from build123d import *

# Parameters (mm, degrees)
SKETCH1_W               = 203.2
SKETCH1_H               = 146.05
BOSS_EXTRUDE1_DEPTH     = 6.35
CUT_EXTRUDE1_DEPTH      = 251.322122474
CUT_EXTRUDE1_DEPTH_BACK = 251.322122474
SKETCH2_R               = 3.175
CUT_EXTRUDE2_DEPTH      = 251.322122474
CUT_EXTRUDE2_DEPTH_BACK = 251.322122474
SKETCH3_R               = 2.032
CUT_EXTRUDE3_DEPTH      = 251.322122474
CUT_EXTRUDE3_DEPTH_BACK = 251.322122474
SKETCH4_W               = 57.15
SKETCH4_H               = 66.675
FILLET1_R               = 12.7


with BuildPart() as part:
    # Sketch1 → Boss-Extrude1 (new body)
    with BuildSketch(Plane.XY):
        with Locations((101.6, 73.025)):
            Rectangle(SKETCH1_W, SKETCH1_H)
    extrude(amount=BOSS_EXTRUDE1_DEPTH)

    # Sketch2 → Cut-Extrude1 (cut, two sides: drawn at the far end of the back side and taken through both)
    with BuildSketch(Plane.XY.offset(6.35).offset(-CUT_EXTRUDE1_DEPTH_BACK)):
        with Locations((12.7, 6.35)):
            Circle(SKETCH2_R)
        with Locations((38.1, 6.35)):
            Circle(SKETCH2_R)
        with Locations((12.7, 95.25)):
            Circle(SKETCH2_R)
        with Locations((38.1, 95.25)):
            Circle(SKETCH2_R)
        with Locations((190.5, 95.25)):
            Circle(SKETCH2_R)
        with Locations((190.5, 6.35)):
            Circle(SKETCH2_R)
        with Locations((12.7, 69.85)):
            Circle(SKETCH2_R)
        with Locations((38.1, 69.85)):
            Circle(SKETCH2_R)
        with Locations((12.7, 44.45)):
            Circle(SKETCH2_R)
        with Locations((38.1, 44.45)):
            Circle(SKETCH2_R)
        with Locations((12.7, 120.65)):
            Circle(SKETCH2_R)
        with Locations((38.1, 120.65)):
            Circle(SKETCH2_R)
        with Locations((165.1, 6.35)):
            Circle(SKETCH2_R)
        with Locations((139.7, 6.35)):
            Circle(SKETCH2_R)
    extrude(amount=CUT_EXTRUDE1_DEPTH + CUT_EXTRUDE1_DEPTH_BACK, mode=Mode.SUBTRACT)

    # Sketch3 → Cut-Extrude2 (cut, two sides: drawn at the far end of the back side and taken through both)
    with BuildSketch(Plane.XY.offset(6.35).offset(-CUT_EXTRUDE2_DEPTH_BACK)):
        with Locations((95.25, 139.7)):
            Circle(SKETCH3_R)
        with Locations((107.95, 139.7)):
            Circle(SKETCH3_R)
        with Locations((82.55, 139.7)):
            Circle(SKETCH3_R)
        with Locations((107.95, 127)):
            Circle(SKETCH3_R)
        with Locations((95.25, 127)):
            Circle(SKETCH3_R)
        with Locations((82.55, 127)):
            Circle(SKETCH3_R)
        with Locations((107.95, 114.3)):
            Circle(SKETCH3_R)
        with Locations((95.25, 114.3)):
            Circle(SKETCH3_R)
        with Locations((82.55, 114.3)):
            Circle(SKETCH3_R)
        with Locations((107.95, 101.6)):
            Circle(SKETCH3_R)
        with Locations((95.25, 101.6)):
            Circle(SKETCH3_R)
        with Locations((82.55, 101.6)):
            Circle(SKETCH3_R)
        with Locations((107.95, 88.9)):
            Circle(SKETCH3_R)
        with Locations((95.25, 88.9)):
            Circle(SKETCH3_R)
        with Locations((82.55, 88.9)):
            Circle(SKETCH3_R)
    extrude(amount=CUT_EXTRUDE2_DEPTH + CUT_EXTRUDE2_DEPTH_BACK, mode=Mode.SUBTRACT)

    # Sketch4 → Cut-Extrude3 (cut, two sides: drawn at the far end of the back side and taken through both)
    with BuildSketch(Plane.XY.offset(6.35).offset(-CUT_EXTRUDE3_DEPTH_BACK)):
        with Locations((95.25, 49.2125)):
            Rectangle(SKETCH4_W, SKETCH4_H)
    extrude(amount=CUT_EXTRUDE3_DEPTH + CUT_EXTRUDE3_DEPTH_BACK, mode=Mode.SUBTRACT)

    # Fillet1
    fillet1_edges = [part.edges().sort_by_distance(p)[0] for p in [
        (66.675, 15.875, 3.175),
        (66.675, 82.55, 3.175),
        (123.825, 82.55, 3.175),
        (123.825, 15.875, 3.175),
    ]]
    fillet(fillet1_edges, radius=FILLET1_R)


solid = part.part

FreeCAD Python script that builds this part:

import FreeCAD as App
import Part
import Sketcher
Q = App.Units.Quantity


def edges_at(feature, points):
    """Names of the edges that pass closest to the given points."""
    edges = feature.Shape.Edges
    near = lambda p: min(range(len(edges)), key=lambda i: edges[i].distToShape(Part.Vertex(*p))[0])
    return sorted({f"Edge{near(p) + 1}" for p in points})


def add_polygon(sketch, points):
    """Adds a closed chain of lines whose ends are joined by coincident constraints."""
    first, n = sketch.GeometryCount, len(points)
    for a, b in zip(points, points[1:] + points[:1]):
        sketch.addGeometry(Part.LineSegment(App.Vector(*a, 0), App.Vector(*b, 0)), False)
    for i in range(n):
        sketch.addConstraint(Sketcher.Constraint("Coincident", first + i, 2, first + (i + 1) % n, 1))

doc = App.newDocument("Part")
params = doc.addObject("Spreadsheet::Sheet", "Params")
for row, (alias, value) in enumerate([
    ("sketch1_width", "8 in"),
    ("sketch1_height", "5.75 in"),
    ("pad1_length", "0.25 in"),
    ("sketch2_diameter", "0.25 in"),
    ("sketch3_diameter", "0.16 in"),
    ("sketch4_width", "2.25 in"),
    ("sketch4_height", "2.625 in"),
    ("fillet_radius", "0.5 in"),
], start=1):
    params.set(f"A{row}", alias)
    params.set(f"B{row}", "=" + value)
    params.setAlias(f"B{row}", alias)

body = doc.addObject("PartDesign::Body", "Body")

sketch1 = body.newObject("Sketcher::SketchObject", "Sketch")
sketch1.AttachmentSupport = (doc.getObject("XY_Plane"), [""])
sketch1.MapMode = "FlatFace"
add_polygon(sketch1, [(0, 146.05), (0, 0), (203.2, 0), (203.2, 146.05)])
sketch1.addConstraint(Sketcher.Constraint("Vertical", 0))
sketch1.addConstraint(Sketcher.Constraint("Horizontal", 1))
sketch1.addConstraint(Sketcher.Constraint("Vertical", 2))
sketch1.addConstraint(Sketcher.Constraint("Horizontal", 3))
sketch1.addConstraint(Sketcher.Constraint("Coincident", 0, 2, -1, 1))
sketch1.addConstraint(Sketcher.Constraint("DistanceX", 1, 1, 1, 2, Q("8 in")))
sketch1.addConstraint(Sketcher.Constraint("DistanceY", 0, 2, 0, 1, Q("5.75 in")))
sketch1.setExpression("Constraints[9]", "Params.sketch1_width")
sketch1.setExpression("Constraints[10]", "Params.sketch1_height")
pad1 = body.newObject("PartDesign::Pad", "Pad")
pad1.Profile = sketch1
pad1.setExpression("Length", "Params.pad1_length")

sketch2 = body.newObject("Sketcher::SketchObject", "Sketch001")
sketch2.AttachmentSupport = (doc.getObject("XY_Plane"), [""])
sketch2.MapMode = "FlatFace"
sketch2.AttachmentOffset = App.Placement(App.Vector(0, 0, 0.25 * 25.4), App.Rotation())
sketch2.addGeometry(Part.Circle(App.Vector(12.7, 6.35, 0), App.Vector(0, 0, 1), 3.175), False)
sketch2.addGeometry(Part.Circle(App.Vector(38.1, 6.35, 0), App.Vector(0, 0, 1), 3.175), False)
sketch2.addGeometry(Part.Circle(App.Vector(12.7, 95.25, 0), App.Vector(0, 0, 1), 3.175), False)
sketch2.addGeometry(Part.Circle(App.Vector(38.1, 95.25, 0), App.Vector(0, 0, 1), 3.175), False)
sketch2.addGeometry(Part.Circle(App.Vector(190.5, 95.25, 0), App.Vector(0, 0, 1), 3.175), False)
sketch2.addGeometry(Part.Circle(App.Vector(190.5, 6.35, 0), App.Vector(0, 0, 1), 3.175), False)
sketch2.addGeometry(Part.Circle(App.Vector(12.7, 69.85, 0), App.Vector(0, 0, 1), 3.175), False)
sketch2.addGeometry(Part.Circle(App.Vector(38.1, 69.85, 0), App.Vector(0, 0, 1), 3.175), False)
sketch2.addGeometry(Part.Circle(App.Vector(12.7, 44.45, 0), App.Vector(0, 0, 1), 3.175), False)
sketch2.addGeometry(Part.Circle(App.Vector(38.1, 44.45, 0), App.Vector(0, 0, 1), 3.175), False)
sketch2.addGeometry(Part.Circle(App.Vector(12.7, 120.65, 0), App.Vector(0, 0, 1), 3.175), False)
sketch2.addGeometry(Part.Circle(App.Vector(38.1, 120.65, 0), App.Vector(0, 0, 1), 3.175), False)
sketch2.addGeometry(Part.Circle(App.Vector(165.1, 6.35, 0), App.Vector(0, 0, 1), 3.175), False)
sketch2.addGeometry(Part.Circle(App.Vector(139.7, 6.35, 0), App.Vector(0, 0, 1), 3.175), False)
sketch2.addConstraint(Sketcher.Constraint("Equal", 0, 1))
sketch2.addConstraint(Sketcher.Constraint("Equal", 1, 2))
sketch2.addConstraint(Sketcher.Constraint("Equal", 2, 3))
sketch2.addConstraint(Sketcher.Constraint("Equal", 3, 4))
sketch2.addConstraint(Sketcher.Constraint("Equal", 4, 5))
sketch2.addConstraint(Sketcher.Constraint("Equal", 5, 6))
sketch2.addConstraint(Sketcher.Constraint("Equal", 6, 7))
sketch2.addConstraint(Sketcher.Constraint("Equal", 7, 8))
sketch2.addConstraint(Sketcher.Constraint("Equal", 8, 9))
sketch2.addConstraint(Sketcher.Constraint("Equal", 9, 10))
sketch2.addConstraint(Sketcher.Constraint("Equal", 10, 11))
sketch2.addConstraint(Sketcher.Constraint("Equal", 11, 12))
sketch2.addConstraint(Sketcher.Constraint("Equal", 12, 13))
sketch2.addConstraint(Sketcher.Constraint("Horizontal", 0, 3, 1, 3))
sketch2.addConstraint(Sketcher.Constraint("Horizontal", 2, 3, 3, 3))
sketch2.addConstraint(Sketcher.Constraint("Horizontal", 3, 3, 4, 3))
sketch2.addConstraint(Sketcher.Constraint("Horizontal", 1, 3, 5, 3))
sketch2.addConstraint(Sketcher.Constraint("Horizontal", 6, 3, 7, 3))
sketch2.addConstraint(Sketcher.Constraint("Horizontal", 8, 3, 9, 3))
sketch2.addConstraint(Sketcher.Constraint("Horizontal", 10, 3, 11, 3))
sketch2.addConstraint(Sketcher.Constraint("Horizontal", 5, 3, 12, 3))
sketch2.addConstraint(Sketcher.Constraint("Horizontal", 12, 3, 13, 3))
sketch2.addConstraint(Sketcher.Constraint("Vertical", 0, 3, 2, 3))
sketch2.addConstraint(Sketcher.Constraint("Vertical", 1, 3, 3, 3))
sketch2.addConstraint(Sketcher.Constraint("Vertical", 4, 3, 5, 3))
sketch2.addConstraint(Sketcher.Constraint("Vertical", 2, 3, 6, 3))
sketch2.addConstraint(Sketcher.Constraint("Vertical", 3, 3, 7, 3))
sketch2.addConstraint(Sketcher.Constraint("Vertical", 6, 3, 8, 3))
sketch2.addConstraint(Sketcher.Constraint("Vertical", 7, 3, 9, 3))
sketch2.addConstraint(Sketcher.Constraint("Vertical", 8, 3, 10, 3))
sketch2.addConstraint(Sketcher.Constraint("Vertical", 9, 3, 11, 3))
sketch2.addConstraint(Sketcher.Constraint("Diameter", 0, Q("0.25 in")))
sketch2.addConstraint(Sketcher.Constraint("DistanceX", 0, 3, 1, 3, Q("1 in")))
sketch2.addConstraint(Sketcher.Constraint("DistanceX", 3, 3, 4, 3, Q("6 in")))
sketch2.addConstraint(Sketcher.Constraint("DistanceY", 6, 3, 2, 3, Q("1 in")))
sketch2.addConstraint(Sketcher.Constraint("DistanceY", 8, 3, 6, 3, Q("1 in")))
sketch2.addConstraint(Sketcher.Constraint("DistanceY", 2, 3, 10, 3, Q("1 in")))
sketch2.addConstraint(Sketcher.Constraint("DistanceX", 12, 3, 5, 3, Q("1 in")))
sketch2.addConstraint(Sketcher.Constraint("DistanceX", 13, 3, 12, 3, Q("1 in")))
sketch2.addConstraint(Sketcher.Constraint("DistanceX", -1, 1, 0, 3, Q("0.5 in")))
sketch2.addConstraint(Sketcher.Constraint("DistanceY", 0, 3, 2, 3, Q("3.5 in")))
sketch2.addConstraint(Sketcher.Constraint("DistanceY", -1, 1, 0, 3, Q("0.25 in")))
sketch2.setExpression("Constraints[31]", "Params.sketch2_diameter")
pocket1 = body.newObject("PartDesign::Pocket", "Pocket")
pocket1.Profile = sketch2
pocket1.Type = "ThroughAll"
pocket1.Midplane = True

sketch3 = body.newObject("Sketcher::SketchObject", "Sketch002")
sketch3.AttachmentSupport = (doc.getObject("XY_Plane"), [""])
sketch3.MapMode = "FlatFace"
sketch3.AttachmentOffset = App.Placement(App.Vector(0, 0, 0.25 * 25.4), App.Rotation())
sketch3.addGeometry(Part.Circle(App.Vector(95.25, 139.7, 0), App.Vector(0, 0, 1), 2.032), False)
sketch3.addGeometry(Part.Circle(App.Vector(107.95, 139.7, 0), App.Vector(0, 0, 1), 2.032), False)
sketch3.addGeometry(Part.Circle(App.Vector(82.55, 139.7, 0), App.Vector(0, 0, 1), 2.032), False)
sketch3.addGeometry(Part.Circle(App.Vector(107.95, 127, 0), App.Vector(0, 0, 1), 2.032), False)
sketch3.addGeometry(Part.Circle(App.Vector(95.25, 127, 0), App.Vector(0, 0, 1), 2.032), False)
sketch3.addGeometry(Part.Circle(App.Vector(82.55, 127, 0), App.Vector(0, 0, 1), 2.032), False)
sketch3.addGeometry(Part.Circle(App.Vector(107.95, 114.3, 0), App.Vector(0, 0, 1), 2.032), False)
sketch3.addGeometry(Part.Circle(App.Vector(95.25, 114.3, 0), App.Vector(0, 0, 1), 2.032), False)
sketch3.addGeometry(Part.Circle(App.Vector(82.55, 114.3, 0), App.Vector(0, 0, 1), 2.032), False)
sketch3.addGeometry(Part.Circle(App.Vector(107.95, 101.6, 0), App.Vector(0, 0, 1), 2.032), False)
sketch3.addGeometry(Part.Circle(App.Vector(95.25, 101.6, 0), App.Vector(0, 0, 1), 2.032), False)
sketch3.addGeometry(Part.Circle(App.Vector(82.55, 101.6, 0), App.Vector(0, 0, 1), 2.032), False)
sketch3.addGeometry(Part.Circle(App.Vector(107.95, 88.9, 0), App.Vector(0, 0, 1), 2.032), False)
sketch3.addGeometry(Part.Circle(App.Vector(95.25, 88.9, 0), App.Vector(0, 0, 1), 2.032), False)
sketch3.addGeometry(Part.Circle(App.Vector(82.55, 88.9, 0), App.Vector(0, 0, 1), 2.032), False)
sketch3.addConstraint(Sketcher.Constraint("Equal", 0, 1))
sketch3.addConstraint(Sketcher.Constraint("Equal", 1, 2))
sketch3.addConstraint(Sketcher.Constraint("Equal", 2, 3))
sketch3.addConstraint(Sketcher.Constraint("Equal", 3, 4))
sketch3.addConstraint(Sketcher.Constraint("Equal", 4, 5))
sketch3.addConstraint(Sketcher.Constraint("Equal", 5, 6))
sketch3.addConstraint(Sketcher.Constraint("Equal", 6, 7))
sketch3.addConstraint(Sketcher.Constraint("Equal", 7, 8))
sketch3.addConstraint(Sketcher.Constraint("Equal", 8, 9))
sketch3.addConstraint(Sketcher.Constraint("Equal", 9, 10))
sketch3.addConstraint(Sketcher.Constraint("Equal", 10, 11))
sketch3.addConstraint(Sketcher.Constraint("Equal", 11, 12))
sketch3.addConstraint(Sketcher.Constraint("Equal", 12, 13))
sketch3.addConstraint(Sketcher.Constraint("Equal", 13, 14))
sketch3.addConstraint(Sketcher.Constraint("Horizontal", 0, 3, 1, 3))
sketch3.addConstraint(Sketcher.Constraint("Horizontal", 1, 3, 2, 3))
sketch3.addConstraint(Sketcher.Constraint("Horizontal", 3, 3, 4, 3))
sketch3.addConstraint(Sketcher.Constraint("Horizontal", 4, 3, 5, 3))
sketch3.addConstraint(Sketcher.Constraint("Horizontal", 6, 3, 7, 3))
sketch3.addConstraint(Sketcher.Constraint("Horizontal", 7, 3, 8, 3))
sketch3.addConstraint(Sketcher.Constraint("Horizontal", 9, 3, 10, 3))
sketch3.addConstraint(Sketcher.Constraint("Horizontal", 10, 3, 11, 3))
sketch3.addConstraint(Sketcher.Constraint("Horizontal", 12, 3, 13, 3))
sketch3.addConstraint(Sketcher.Constraint("Horizontal", 13, 3, 14, 3))
sketch3.addConstraint(Sketcher.Constraint("Vertical", 1, 3, 3, 3))
sketch3.addConstraint(Sketcher.Constraint("Vertical", 0, 3, 4, 3))
sketch3.addConstraint(Sketcher.Constraint("Vertical", 2, 3, 5, 3))
sketch3.addConstraint(Sketcher.Constraint("Vertical", 3, 3, 6, 3))
sketch3.addConstraint(Sketcher.Constraint("Vertical", 4, 3, 7, 3))
sketch3.addConstraint(Sketcher.Constraint("Vertical", 5, 3, 8, 3))
sketch3.addConstraint(Sketcher.Constraint("Vertical", 6, 3, 9, 3))
sketch3.addConstraint(Sketcher.Constraint("Vertical", 7, 3, 10, 3))
sketch3.addConstraint(Sketcher.Constraint("Vertical", 8, 3, 11, 3))
sketch3.addConstraint(Sketcher.Constraint("Vertical", 9, 3, 12, 3))
sketch3.addConstraint(Sketcher.Constraint("Vertical", 10, 3, 13, 3))
sketch3.addConstraint(Sketcher.Constraint("Vertical", 11, 3, 14, 3))
sketch3.addConstraint(Sketcher.Constraint("Diameter", 0, Q("0.16 in")))
sketch3.addConstraint(Sketcher.Constraint("DistanceY", -1, 1, 3, 3, Q("5 in")))
sketch3.addConstraint(Sketcher.Constraint("DistanceY", -1, 1, 9, 3, Q("4 in")))
sketch3.addConstraint(Sketcher.Constraint("DistanceX", 2, 3, 1, 3, Q("1 in")))
sketch3.addConstraint(Sketcher.Constraint("DistanceY", 6, 3, 1, 3, Q("1 in")))
sketch3.addConstraint(Sketcher.Constraint("DistanceY", 12, 3, 6, 3, Q("1 in")))
sketch3.addConstraint(Sketcher.Constraint("DistanceY", -1, 1, 0, 3, Q("5.5 in")))
sketch3.addConstraint(Sketcher.Constraint("DistanceX", 0, 3, 1, 3, Q("0.5 in")))
sketch3.addConstraint(Sketcher.Constraint("DistanceX", -1, 1, 0, 3, Q("3.75 in")))
sketch3.setExpression("Constraints[36]", "Params.sketch3_diameter")
pocket2 = body.newObject("PartDesign::Pocket", "Pocket001")
pocket2.Profile = sketch3
pocket2.Type = "ThroughAll"
pocket2.Midplane = True

sketch4 = body.newObject("Sketcher::SketchObject", "Sketch003")
sketch4.AttachmentSupport = (doc.getObject("XY_Plane"), [""])
sketch4.MapMode = "FlatFace"
sketch4.AttachmentOffset = App.Placement(App.Vector(0, 0, 0.25 * 25.4), App.Rotation())
add_polygon(sketch4, [(66.675, 82.55), (66.675, 15.875), (123.825, 15.875), (123.825, 82.55)])
sketch4.addConstraint(Sketcher.Constraint("Vertical", 0))
sketch4.addConstraint(Sketcher.Constraint("Horizontal", 1))
sketch4.addConstraint(Sketcher.Constraint("Vertical", 2))
sketch4.addConstraint(Sketcher.Constraint("Horizontal", 3))
sketch4.addConstraint(Sketcher.Constraint("DistanceX", 1, 1, 1, 2, Q("2.25 in")))
sketch4.addConstraint(Sketcher.Constraint("DistanceY", 0, 2, 0, 1, Q("2.625 in")))
sketch4.addConstraint(Sketcher.Constraint("DistanceY", -1, 1, 2, 2, Q("3.25 in")))
sketch4.addConstraint(Sketcher.Constraint("DistanceX", -1, 1, 0, 2, Q("2.625 in")))
sketch4.setExpression("Constraints[8]", "Params.sketch4_width")
sketch4.setExpression("Constraints[9]", "Params.sketch4_height")
pocket3 = body.newObject("PartDesign::Pocket", "Pocket002")
pocket3.Profile = sketch4
pocket3.Type = "ThroughAll"
pocket3.Midplane = True
doc.recompute()

fillet = body.newObject("PartDesign::Fillet", "Fillet")
fillet.Base = (pocket3, edges_at(pocket3, [
    (66.675, 15.875, 3.175),
    (66.675, 82.55, 3.175),
    (123.825, 82.55, 3.175),
    (123.825, 15.875, 3.175),
]))
fillet.setExpression("Radius", "Params.fillet_radius")

doc.recompute()
